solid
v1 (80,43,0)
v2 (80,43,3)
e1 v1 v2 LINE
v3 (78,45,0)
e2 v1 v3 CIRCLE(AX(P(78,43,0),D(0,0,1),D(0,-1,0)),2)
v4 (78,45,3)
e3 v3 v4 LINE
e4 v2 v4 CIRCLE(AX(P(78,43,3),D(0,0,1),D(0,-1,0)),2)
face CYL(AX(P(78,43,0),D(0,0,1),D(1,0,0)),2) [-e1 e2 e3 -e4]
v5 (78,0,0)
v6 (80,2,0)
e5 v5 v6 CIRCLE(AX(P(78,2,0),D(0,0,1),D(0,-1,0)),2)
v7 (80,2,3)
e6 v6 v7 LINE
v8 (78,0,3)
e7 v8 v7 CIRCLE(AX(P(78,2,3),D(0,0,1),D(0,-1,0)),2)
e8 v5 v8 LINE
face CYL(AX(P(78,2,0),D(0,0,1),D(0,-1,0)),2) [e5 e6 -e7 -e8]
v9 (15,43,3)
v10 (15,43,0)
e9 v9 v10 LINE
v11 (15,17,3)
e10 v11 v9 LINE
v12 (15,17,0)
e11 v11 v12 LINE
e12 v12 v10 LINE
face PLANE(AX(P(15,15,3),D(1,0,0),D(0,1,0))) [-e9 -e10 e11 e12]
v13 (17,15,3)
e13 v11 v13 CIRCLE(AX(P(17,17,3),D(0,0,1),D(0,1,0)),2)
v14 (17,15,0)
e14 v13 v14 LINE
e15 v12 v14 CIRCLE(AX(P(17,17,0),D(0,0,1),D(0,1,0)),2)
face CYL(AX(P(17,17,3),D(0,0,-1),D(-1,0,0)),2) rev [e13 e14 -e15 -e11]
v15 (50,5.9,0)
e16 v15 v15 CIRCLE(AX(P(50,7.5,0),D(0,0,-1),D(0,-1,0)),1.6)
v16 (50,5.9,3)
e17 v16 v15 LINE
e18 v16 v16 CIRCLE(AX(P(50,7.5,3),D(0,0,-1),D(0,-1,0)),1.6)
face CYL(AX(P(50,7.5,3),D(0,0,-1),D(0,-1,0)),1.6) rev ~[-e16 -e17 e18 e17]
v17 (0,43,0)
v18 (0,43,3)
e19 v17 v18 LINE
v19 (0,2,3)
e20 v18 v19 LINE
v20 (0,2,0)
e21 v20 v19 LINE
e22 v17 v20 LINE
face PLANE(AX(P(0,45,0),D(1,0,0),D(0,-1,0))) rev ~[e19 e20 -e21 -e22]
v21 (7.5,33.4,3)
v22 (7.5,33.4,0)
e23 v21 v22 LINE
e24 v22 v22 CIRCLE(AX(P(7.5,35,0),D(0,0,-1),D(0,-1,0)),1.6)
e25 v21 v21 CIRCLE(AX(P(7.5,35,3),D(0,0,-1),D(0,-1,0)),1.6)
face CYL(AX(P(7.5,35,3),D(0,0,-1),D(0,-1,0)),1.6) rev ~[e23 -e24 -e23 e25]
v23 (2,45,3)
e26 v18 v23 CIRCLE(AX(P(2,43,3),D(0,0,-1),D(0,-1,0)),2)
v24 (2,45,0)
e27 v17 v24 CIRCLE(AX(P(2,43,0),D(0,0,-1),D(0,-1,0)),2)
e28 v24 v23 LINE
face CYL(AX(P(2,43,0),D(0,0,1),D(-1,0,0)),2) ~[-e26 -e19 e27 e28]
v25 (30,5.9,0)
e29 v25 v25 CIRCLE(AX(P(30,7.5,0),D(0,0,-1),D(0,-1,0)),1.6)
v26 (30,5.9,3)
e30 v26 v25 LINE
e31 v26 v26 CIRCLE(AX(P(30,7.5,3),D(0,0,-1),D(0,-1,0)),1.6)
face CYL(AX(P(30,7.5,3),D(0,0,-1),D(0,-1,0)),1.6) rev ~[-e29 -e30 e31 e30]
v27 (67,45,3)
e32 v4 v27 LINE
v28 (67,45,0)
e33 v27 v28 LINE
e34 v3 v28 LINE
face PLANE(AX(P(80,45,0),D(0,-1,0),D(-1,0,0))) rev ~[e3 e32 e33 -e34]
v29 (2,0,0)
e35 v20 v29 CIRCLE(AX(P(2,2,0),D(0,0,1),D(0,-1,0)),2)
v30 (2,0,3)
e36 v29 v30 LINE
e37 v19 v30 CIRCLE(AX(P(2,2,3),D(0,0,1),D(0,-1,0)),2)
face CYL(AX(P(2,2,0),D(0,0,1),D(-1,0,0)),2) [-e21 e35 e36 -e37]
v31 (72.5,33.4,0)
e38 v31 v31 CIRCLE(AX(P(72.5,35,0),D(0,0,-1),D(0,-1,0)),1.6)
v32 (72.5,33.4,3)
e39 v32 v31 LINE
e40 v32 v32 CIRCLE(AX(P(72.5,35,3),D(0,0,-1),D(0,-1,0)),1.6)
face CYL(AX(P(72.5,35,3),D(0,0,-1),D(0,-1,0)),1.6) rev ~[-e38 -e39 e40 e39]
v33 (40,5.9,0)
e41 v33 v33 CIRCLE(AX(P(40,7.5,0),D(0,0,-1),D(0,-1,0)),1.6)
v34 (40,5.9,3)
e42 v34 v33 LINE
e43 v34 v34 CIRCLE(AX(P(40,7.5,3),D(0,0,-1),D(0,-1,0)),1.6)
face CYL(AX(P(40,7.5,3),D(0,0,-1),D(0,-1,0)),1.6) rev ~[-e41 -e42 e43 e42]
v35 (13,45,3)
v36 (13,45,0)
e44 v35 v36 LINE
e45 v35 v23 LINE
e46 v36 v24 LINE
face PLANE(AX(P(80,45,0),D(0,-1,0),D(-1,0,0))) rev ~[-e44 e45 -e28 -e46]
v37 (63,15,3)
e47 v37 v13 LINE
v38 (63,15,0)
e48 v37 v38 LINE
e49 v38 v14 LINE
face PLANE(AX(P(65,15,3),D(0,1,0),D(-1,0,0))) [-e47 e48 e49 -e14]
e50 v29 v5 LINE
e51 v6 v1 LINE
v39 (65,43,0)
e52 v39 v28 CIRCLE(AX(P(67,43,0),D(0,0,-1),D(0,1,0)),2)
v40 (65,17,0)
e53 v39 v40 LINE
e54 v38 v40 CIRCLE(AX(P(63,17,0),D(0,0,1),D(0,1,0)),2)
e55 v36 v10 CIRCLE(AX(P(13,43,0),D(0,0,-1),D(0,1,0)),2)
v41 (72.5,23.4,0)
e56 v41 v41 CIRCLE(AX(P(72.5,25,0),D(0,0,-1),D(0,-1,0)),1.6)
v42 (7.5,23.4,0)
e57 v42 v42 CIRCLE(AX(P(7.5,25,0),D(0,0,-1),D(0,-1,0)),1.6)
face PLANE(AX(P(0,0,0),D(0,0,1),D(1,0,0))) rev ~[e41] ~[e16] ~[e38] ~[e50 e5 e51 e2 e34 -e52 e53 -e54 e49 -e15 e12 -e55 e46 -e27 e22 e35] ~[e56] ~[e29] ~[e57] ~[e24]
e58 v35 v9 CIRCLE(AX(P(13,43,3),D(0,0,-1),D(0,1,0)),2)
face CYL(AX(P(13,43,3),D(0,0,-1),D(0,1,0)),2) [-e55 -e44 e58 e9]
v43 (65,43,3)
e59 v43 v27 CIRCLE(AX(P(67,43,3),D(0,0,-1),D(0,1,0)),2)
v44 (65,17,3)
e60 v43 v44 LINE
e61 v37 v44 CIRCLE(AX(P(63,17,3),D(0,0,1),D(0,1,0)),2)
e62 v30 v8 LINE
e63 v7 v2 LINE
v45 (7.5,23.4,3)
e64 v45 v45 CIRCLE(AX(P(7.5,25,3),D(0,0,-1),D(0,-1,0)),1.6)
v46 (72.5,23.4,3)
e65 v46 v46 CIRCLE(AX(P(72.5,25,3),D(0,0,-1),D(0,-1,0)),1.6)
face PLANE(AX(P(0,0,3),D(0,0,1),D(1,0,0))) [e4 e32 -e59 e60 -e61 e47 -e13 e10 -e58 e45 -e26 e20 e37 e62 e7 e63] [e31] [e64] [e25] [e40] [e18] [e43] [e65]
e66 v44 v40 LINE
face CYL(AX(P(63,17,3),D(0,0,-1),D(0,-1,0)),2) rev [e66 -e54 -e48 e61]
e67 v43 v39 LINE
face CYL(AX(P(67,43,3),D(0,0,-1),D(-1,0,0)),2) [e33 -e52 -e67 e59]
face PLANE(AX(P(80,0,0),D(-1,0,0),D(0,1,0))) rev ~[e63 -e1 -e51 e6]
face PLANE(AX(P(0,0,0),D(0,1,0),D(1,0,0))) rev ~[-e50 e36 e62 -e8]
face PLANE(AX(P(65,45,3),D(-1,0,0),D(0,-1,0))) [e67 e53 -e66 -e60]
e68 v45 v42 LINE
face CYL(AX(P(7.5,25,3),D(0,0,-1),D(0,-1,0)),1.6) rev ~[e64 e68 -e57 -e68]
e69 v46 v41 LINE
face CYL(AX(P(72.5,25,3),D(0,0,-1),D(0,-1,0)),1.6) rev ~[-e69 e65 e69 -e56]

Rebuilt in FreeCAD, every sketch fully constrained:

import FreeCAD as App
import Part
import Sketcher

V = App.Vector


def edges_at(feature, points):
    """Names of the edges that pass closest to the given points."""
    edges = feature.Shape.Edges
    near = lambda p: min(range(len(edges)), key=lambda i: edges[i].distToShape(Part.Vertex(*p))[0])
    return sorted({f"Edge{near(p) + 1}" for p in points})


def add_polygon(sketch, points):
    """Adds a closed chain of lines whose ends are joined by coincident constraints."""
    first, n = sketch.GeometryCount, len(points)
    for a, b in zip(points, points[1:] + points[:1]):
        sketch.addGeometry(Part.LineSegment(App.Vector(*a, 0), App.Vector(*b, 0)), False)
    for i in range(n):
        sketch.addConstraint(Sketcher.Constraint("Coincident", first + i, 2, first + (i + 1) % n, 1))

doc = App.newDocument("Part")
params = doc.addObject("Spreadsheet::Sheet", "Params")
for row, (alias, value) in enumerate([
    ("sketch1_width", "80 mm"),
    ("sketch1_height", "45 mm"),
    ("pad1_length", "3 mm"),
    ("sketch2_diameter", "3.2 mm"),
    ("hole_diameter", "3.2 mm"),
    ("sketch3_width", "50 mm"),
    ("sketch3_height", "30 mm"),
    ("pocket1_length", "3 mm"),
    ("fillet_radius", "2 mm"),
], start=1):
    params.set(f"A{row}", alias)
    params.set(f"B{row}", "=" + value)
    params.setAlias(f"B{row}", alias)

body = doc.addObject("PartDesign::Body", "Body")

# Sketch on XY plane
sketch1 = doc.addObject("Sketcher::SketchObject", "Sketch")
body.addObject(sketch1)
sketch1.AttachmentSupport = (doc.XY_Plane, [""])
sketch1.MapMode = "FlatFace"
add_polygon(sketch1, [(0, 45), (0, 0), (80, 0), (80, 45)])  # lines 0-3
sketch1.addConstraint(Sketcher.Constraint("Vertical", 0))
sketch1.addConstraint(Sketcher.Constraint("Horizontal", 1))
sketch1.addConstraint(Sketcher.Constraint("Vertical", 2))
sketch1.addConstraint(Sketcher.Constraint("Horizontal", 3))
sketch1.addConstraint(Sketcher.Constraint("Coincident", 0, 2, -1, 1))
sketch1.addConstraint(Sketcher.Constraint("DistanceX", 1, 1, 1, 2, 80.0))
sketch1.addConstraint(Sketcher.Constraint("DistanceY", 0, 2, 0, 1, 45.0))
sketch1.setExpression("Constraints[9]", "Params.sketch1_width")
sketch1.setExpression("Constraints[10]", "Params.sketch1_height")
pad1 = doc.addObject("PartDesign::Pad", "Pad")
body.addObject(pad1)
pad1.Profile = sketch1
pad1.setExpression("Length", "Params.pad1_length")

# Sketch on XY plane
sketch2 = doc.addObject("Sketcher::SketchObject", "Sketch001")
body.addObject(sketch2)
sketch2.AttachmentSupport = (doc.XY_Plane, [""])
sketch2.MapMode = "FlatFace"
sketch2.AttachmentOffset = App.Placement(V(0, 0, 3), App.Rotation())
sketch2.addGeometry(Part.Circle(V(7.5, 35, 0), V(0, 0, 1), 1.6), False)
sketch2.addGeometry(Part.Circle(V(7.5, 25, 0), V(0, 0, 1), 1.6), False)
sketch2.addGeometry(Part.Circle(V(30, 7.5, 0), V(0, 0, 1), 1.6), False)
sketch2.addGeometry(Part.Circle(V(72.5, 35, 0), V(0, 0, 1), 1.6), False)
sketch2.addGeometry(Part.Circle(V(72.5, 25, 0), V(0, 0, 1), 1.6), False)
sketch2.addGeometry(Part.Circle(V(50, 7.5, 0), V(0, 0, 1), 1.6), False)
sketch2.addGeometry(Part.Circle(V(40, 7.5, 0), V(0, 0, 1), 1.6), False)
sketch2.addConstraint(Sketcher.Constraint("Equal", 0, 1))
sketch2.addConstraint(Sketcher.Constraint("Equal", 1, 2))
sketch2.addConstraint(Sketcher.Constraint("Equal", 2, 3))
sketch2.addConstraint(Sketcher.Constraint("Equal", 3, 4))
sketch2.addConstraint(Sketcher.Constraint("Equal", 4, 5))
sketch2.addConstraint(Sketcher.Constraint("Equal", 5, 6))
sketch2.addConstraint(Sketcher.Constraint("Horizontal", 0, 3, 3, 3))
sketch2.addConstraint(Sketcher.Constraint("Horizontal", 1, 3, 4, 3))
sketch2.addConstraint(Sketcher.Constraint("Horizontal", 2, 3, 5, 3))
sketch2.addConstraint(Sketcher.Constraint("Horizontal", 5, 3, 6, 3))
sketch2.addConstraint(Sketcher.Constraint("Vertical", 0, 3, 1, 3))
sketch2.addConstraint(Sketcher.Constraint("Vertical", 3, 3, 4, 3))
sketch2.addConstraint(Sketcher.Constraint("Diameter", 0, 3.2))
sketch2.addConstraint(Sketcher.Constraint("DistanceY", -1, 1, 0, 3, 35.0))
sketch2.addConstraint(Sketcher.Constraint("DistanceY", -1, 1, 1, 3, 25.0))
sketch2.addConstraint(Sketcher.Constraint("DistanceX", -1, 1, 2, 3, 30.0))
sketch2.addConstraint(Sketcher.Constraint("DistanceX", -1, 1, 5, 3, 50.0))
sketch2.addConstraint(Sketcher.Constraint("DistanceX", -1, 1, 6, 3, 40.0))
sketch2.addConstraint(Sketcher.Constraint("DistanceX", 0, 3, 3, 3, 65.0))
sketch2.addConstraint(Sketcher.Constraint("DistanceX", -1, 1, 0, 3, 7.5))
sketch2.addConstraint(Sketcher.Constraint("DistanceY", -1, 1, 2, 3, 7.5))
sketch2.setExpression("Constraints[12]", "Params.sketch2_diameter")
doc.recompute()
hole = doc.addObject("PartDesign::Hole", "Hole")
body.addObject(hole)
hole.Profile = sketch2
hole.ThreadType = "None"
hole.setExpression("Diameter", "Params.hole_diameter")
hole.DepthType = "ThroughAll"

# Sketch on XY plane
sketch3 = doc.addObject("Sketcher::SketchObject", "Sketch002")
body.addObject(sketch3)
sketch3.AttachmentSupport = (doc.XY_Plane, [""])
sketch3.MapMode = "FlatFace"
sketch3.AttachmentOffset = App.Placement(V(0, 0, 3), App.Rotation())
add_polygon(sketch3, [(65, 15), (65, 45), (15, 45), (15, 15)])  # lines 0-3
sketch3.addConstraint(Sketcher.Constraint("Vertical", 0))
sketch3.addConstraint(Sketcher.Constraint("Horizontal", 1))
sketch3.addConstraint(Sketcher.Constraint("Vertical", 2))
sketch3.addConstraint(Sketcher.Constraint("Horizontal", 3))
sketch3.addConstraint(Sketcher.Constraint("DistanceX", 1, 2, 1, 1, 50.0))
sketch3.addConstraint(Sketcher.Constraint("DistanceY", 0, 1, 0, 2, 30.0))
sketch3.addConstraint(Sketcher.Constraint("DistanceX", -1, 1, 1, 2, 15.0))
sketch3.addConstraint(Sketcher.Constraint("DistanceY", -1, 1, 2, 2, 15.0))
sketch3.setExpression("Constraints[8]", "Params.sketch3_width")
sketch3.setExpression("Constraints[9]", "Params.sketch3_height")
pocket1 = doc.addObject("PartDesign::Pocket", "Pocket")
body.addObject(pocket1)
pocket1.Profile = sketch3
pocket1.setExpression("Length", "Params.pocket1_length")
doc.recompute()

fillet = doc.addObject("PartDesign::Fillet", "Fillet")
body.addObject(fillet)
fillet.Base = (pocket1, edges_at(pocket1, [
    (15, 45, 1.5),
    (65, 15, 1.5),
    (65, 45, 1.5),
    (80, 45, 1.5),
    (0, 45, 1.5),
    (0, 0, 1.5),
    (80, 0, 1.5),
    (15, 15, 1.5),
]))
fillet.setExpression("Radius", "Params.fillet_radius")

doc.recompute()
